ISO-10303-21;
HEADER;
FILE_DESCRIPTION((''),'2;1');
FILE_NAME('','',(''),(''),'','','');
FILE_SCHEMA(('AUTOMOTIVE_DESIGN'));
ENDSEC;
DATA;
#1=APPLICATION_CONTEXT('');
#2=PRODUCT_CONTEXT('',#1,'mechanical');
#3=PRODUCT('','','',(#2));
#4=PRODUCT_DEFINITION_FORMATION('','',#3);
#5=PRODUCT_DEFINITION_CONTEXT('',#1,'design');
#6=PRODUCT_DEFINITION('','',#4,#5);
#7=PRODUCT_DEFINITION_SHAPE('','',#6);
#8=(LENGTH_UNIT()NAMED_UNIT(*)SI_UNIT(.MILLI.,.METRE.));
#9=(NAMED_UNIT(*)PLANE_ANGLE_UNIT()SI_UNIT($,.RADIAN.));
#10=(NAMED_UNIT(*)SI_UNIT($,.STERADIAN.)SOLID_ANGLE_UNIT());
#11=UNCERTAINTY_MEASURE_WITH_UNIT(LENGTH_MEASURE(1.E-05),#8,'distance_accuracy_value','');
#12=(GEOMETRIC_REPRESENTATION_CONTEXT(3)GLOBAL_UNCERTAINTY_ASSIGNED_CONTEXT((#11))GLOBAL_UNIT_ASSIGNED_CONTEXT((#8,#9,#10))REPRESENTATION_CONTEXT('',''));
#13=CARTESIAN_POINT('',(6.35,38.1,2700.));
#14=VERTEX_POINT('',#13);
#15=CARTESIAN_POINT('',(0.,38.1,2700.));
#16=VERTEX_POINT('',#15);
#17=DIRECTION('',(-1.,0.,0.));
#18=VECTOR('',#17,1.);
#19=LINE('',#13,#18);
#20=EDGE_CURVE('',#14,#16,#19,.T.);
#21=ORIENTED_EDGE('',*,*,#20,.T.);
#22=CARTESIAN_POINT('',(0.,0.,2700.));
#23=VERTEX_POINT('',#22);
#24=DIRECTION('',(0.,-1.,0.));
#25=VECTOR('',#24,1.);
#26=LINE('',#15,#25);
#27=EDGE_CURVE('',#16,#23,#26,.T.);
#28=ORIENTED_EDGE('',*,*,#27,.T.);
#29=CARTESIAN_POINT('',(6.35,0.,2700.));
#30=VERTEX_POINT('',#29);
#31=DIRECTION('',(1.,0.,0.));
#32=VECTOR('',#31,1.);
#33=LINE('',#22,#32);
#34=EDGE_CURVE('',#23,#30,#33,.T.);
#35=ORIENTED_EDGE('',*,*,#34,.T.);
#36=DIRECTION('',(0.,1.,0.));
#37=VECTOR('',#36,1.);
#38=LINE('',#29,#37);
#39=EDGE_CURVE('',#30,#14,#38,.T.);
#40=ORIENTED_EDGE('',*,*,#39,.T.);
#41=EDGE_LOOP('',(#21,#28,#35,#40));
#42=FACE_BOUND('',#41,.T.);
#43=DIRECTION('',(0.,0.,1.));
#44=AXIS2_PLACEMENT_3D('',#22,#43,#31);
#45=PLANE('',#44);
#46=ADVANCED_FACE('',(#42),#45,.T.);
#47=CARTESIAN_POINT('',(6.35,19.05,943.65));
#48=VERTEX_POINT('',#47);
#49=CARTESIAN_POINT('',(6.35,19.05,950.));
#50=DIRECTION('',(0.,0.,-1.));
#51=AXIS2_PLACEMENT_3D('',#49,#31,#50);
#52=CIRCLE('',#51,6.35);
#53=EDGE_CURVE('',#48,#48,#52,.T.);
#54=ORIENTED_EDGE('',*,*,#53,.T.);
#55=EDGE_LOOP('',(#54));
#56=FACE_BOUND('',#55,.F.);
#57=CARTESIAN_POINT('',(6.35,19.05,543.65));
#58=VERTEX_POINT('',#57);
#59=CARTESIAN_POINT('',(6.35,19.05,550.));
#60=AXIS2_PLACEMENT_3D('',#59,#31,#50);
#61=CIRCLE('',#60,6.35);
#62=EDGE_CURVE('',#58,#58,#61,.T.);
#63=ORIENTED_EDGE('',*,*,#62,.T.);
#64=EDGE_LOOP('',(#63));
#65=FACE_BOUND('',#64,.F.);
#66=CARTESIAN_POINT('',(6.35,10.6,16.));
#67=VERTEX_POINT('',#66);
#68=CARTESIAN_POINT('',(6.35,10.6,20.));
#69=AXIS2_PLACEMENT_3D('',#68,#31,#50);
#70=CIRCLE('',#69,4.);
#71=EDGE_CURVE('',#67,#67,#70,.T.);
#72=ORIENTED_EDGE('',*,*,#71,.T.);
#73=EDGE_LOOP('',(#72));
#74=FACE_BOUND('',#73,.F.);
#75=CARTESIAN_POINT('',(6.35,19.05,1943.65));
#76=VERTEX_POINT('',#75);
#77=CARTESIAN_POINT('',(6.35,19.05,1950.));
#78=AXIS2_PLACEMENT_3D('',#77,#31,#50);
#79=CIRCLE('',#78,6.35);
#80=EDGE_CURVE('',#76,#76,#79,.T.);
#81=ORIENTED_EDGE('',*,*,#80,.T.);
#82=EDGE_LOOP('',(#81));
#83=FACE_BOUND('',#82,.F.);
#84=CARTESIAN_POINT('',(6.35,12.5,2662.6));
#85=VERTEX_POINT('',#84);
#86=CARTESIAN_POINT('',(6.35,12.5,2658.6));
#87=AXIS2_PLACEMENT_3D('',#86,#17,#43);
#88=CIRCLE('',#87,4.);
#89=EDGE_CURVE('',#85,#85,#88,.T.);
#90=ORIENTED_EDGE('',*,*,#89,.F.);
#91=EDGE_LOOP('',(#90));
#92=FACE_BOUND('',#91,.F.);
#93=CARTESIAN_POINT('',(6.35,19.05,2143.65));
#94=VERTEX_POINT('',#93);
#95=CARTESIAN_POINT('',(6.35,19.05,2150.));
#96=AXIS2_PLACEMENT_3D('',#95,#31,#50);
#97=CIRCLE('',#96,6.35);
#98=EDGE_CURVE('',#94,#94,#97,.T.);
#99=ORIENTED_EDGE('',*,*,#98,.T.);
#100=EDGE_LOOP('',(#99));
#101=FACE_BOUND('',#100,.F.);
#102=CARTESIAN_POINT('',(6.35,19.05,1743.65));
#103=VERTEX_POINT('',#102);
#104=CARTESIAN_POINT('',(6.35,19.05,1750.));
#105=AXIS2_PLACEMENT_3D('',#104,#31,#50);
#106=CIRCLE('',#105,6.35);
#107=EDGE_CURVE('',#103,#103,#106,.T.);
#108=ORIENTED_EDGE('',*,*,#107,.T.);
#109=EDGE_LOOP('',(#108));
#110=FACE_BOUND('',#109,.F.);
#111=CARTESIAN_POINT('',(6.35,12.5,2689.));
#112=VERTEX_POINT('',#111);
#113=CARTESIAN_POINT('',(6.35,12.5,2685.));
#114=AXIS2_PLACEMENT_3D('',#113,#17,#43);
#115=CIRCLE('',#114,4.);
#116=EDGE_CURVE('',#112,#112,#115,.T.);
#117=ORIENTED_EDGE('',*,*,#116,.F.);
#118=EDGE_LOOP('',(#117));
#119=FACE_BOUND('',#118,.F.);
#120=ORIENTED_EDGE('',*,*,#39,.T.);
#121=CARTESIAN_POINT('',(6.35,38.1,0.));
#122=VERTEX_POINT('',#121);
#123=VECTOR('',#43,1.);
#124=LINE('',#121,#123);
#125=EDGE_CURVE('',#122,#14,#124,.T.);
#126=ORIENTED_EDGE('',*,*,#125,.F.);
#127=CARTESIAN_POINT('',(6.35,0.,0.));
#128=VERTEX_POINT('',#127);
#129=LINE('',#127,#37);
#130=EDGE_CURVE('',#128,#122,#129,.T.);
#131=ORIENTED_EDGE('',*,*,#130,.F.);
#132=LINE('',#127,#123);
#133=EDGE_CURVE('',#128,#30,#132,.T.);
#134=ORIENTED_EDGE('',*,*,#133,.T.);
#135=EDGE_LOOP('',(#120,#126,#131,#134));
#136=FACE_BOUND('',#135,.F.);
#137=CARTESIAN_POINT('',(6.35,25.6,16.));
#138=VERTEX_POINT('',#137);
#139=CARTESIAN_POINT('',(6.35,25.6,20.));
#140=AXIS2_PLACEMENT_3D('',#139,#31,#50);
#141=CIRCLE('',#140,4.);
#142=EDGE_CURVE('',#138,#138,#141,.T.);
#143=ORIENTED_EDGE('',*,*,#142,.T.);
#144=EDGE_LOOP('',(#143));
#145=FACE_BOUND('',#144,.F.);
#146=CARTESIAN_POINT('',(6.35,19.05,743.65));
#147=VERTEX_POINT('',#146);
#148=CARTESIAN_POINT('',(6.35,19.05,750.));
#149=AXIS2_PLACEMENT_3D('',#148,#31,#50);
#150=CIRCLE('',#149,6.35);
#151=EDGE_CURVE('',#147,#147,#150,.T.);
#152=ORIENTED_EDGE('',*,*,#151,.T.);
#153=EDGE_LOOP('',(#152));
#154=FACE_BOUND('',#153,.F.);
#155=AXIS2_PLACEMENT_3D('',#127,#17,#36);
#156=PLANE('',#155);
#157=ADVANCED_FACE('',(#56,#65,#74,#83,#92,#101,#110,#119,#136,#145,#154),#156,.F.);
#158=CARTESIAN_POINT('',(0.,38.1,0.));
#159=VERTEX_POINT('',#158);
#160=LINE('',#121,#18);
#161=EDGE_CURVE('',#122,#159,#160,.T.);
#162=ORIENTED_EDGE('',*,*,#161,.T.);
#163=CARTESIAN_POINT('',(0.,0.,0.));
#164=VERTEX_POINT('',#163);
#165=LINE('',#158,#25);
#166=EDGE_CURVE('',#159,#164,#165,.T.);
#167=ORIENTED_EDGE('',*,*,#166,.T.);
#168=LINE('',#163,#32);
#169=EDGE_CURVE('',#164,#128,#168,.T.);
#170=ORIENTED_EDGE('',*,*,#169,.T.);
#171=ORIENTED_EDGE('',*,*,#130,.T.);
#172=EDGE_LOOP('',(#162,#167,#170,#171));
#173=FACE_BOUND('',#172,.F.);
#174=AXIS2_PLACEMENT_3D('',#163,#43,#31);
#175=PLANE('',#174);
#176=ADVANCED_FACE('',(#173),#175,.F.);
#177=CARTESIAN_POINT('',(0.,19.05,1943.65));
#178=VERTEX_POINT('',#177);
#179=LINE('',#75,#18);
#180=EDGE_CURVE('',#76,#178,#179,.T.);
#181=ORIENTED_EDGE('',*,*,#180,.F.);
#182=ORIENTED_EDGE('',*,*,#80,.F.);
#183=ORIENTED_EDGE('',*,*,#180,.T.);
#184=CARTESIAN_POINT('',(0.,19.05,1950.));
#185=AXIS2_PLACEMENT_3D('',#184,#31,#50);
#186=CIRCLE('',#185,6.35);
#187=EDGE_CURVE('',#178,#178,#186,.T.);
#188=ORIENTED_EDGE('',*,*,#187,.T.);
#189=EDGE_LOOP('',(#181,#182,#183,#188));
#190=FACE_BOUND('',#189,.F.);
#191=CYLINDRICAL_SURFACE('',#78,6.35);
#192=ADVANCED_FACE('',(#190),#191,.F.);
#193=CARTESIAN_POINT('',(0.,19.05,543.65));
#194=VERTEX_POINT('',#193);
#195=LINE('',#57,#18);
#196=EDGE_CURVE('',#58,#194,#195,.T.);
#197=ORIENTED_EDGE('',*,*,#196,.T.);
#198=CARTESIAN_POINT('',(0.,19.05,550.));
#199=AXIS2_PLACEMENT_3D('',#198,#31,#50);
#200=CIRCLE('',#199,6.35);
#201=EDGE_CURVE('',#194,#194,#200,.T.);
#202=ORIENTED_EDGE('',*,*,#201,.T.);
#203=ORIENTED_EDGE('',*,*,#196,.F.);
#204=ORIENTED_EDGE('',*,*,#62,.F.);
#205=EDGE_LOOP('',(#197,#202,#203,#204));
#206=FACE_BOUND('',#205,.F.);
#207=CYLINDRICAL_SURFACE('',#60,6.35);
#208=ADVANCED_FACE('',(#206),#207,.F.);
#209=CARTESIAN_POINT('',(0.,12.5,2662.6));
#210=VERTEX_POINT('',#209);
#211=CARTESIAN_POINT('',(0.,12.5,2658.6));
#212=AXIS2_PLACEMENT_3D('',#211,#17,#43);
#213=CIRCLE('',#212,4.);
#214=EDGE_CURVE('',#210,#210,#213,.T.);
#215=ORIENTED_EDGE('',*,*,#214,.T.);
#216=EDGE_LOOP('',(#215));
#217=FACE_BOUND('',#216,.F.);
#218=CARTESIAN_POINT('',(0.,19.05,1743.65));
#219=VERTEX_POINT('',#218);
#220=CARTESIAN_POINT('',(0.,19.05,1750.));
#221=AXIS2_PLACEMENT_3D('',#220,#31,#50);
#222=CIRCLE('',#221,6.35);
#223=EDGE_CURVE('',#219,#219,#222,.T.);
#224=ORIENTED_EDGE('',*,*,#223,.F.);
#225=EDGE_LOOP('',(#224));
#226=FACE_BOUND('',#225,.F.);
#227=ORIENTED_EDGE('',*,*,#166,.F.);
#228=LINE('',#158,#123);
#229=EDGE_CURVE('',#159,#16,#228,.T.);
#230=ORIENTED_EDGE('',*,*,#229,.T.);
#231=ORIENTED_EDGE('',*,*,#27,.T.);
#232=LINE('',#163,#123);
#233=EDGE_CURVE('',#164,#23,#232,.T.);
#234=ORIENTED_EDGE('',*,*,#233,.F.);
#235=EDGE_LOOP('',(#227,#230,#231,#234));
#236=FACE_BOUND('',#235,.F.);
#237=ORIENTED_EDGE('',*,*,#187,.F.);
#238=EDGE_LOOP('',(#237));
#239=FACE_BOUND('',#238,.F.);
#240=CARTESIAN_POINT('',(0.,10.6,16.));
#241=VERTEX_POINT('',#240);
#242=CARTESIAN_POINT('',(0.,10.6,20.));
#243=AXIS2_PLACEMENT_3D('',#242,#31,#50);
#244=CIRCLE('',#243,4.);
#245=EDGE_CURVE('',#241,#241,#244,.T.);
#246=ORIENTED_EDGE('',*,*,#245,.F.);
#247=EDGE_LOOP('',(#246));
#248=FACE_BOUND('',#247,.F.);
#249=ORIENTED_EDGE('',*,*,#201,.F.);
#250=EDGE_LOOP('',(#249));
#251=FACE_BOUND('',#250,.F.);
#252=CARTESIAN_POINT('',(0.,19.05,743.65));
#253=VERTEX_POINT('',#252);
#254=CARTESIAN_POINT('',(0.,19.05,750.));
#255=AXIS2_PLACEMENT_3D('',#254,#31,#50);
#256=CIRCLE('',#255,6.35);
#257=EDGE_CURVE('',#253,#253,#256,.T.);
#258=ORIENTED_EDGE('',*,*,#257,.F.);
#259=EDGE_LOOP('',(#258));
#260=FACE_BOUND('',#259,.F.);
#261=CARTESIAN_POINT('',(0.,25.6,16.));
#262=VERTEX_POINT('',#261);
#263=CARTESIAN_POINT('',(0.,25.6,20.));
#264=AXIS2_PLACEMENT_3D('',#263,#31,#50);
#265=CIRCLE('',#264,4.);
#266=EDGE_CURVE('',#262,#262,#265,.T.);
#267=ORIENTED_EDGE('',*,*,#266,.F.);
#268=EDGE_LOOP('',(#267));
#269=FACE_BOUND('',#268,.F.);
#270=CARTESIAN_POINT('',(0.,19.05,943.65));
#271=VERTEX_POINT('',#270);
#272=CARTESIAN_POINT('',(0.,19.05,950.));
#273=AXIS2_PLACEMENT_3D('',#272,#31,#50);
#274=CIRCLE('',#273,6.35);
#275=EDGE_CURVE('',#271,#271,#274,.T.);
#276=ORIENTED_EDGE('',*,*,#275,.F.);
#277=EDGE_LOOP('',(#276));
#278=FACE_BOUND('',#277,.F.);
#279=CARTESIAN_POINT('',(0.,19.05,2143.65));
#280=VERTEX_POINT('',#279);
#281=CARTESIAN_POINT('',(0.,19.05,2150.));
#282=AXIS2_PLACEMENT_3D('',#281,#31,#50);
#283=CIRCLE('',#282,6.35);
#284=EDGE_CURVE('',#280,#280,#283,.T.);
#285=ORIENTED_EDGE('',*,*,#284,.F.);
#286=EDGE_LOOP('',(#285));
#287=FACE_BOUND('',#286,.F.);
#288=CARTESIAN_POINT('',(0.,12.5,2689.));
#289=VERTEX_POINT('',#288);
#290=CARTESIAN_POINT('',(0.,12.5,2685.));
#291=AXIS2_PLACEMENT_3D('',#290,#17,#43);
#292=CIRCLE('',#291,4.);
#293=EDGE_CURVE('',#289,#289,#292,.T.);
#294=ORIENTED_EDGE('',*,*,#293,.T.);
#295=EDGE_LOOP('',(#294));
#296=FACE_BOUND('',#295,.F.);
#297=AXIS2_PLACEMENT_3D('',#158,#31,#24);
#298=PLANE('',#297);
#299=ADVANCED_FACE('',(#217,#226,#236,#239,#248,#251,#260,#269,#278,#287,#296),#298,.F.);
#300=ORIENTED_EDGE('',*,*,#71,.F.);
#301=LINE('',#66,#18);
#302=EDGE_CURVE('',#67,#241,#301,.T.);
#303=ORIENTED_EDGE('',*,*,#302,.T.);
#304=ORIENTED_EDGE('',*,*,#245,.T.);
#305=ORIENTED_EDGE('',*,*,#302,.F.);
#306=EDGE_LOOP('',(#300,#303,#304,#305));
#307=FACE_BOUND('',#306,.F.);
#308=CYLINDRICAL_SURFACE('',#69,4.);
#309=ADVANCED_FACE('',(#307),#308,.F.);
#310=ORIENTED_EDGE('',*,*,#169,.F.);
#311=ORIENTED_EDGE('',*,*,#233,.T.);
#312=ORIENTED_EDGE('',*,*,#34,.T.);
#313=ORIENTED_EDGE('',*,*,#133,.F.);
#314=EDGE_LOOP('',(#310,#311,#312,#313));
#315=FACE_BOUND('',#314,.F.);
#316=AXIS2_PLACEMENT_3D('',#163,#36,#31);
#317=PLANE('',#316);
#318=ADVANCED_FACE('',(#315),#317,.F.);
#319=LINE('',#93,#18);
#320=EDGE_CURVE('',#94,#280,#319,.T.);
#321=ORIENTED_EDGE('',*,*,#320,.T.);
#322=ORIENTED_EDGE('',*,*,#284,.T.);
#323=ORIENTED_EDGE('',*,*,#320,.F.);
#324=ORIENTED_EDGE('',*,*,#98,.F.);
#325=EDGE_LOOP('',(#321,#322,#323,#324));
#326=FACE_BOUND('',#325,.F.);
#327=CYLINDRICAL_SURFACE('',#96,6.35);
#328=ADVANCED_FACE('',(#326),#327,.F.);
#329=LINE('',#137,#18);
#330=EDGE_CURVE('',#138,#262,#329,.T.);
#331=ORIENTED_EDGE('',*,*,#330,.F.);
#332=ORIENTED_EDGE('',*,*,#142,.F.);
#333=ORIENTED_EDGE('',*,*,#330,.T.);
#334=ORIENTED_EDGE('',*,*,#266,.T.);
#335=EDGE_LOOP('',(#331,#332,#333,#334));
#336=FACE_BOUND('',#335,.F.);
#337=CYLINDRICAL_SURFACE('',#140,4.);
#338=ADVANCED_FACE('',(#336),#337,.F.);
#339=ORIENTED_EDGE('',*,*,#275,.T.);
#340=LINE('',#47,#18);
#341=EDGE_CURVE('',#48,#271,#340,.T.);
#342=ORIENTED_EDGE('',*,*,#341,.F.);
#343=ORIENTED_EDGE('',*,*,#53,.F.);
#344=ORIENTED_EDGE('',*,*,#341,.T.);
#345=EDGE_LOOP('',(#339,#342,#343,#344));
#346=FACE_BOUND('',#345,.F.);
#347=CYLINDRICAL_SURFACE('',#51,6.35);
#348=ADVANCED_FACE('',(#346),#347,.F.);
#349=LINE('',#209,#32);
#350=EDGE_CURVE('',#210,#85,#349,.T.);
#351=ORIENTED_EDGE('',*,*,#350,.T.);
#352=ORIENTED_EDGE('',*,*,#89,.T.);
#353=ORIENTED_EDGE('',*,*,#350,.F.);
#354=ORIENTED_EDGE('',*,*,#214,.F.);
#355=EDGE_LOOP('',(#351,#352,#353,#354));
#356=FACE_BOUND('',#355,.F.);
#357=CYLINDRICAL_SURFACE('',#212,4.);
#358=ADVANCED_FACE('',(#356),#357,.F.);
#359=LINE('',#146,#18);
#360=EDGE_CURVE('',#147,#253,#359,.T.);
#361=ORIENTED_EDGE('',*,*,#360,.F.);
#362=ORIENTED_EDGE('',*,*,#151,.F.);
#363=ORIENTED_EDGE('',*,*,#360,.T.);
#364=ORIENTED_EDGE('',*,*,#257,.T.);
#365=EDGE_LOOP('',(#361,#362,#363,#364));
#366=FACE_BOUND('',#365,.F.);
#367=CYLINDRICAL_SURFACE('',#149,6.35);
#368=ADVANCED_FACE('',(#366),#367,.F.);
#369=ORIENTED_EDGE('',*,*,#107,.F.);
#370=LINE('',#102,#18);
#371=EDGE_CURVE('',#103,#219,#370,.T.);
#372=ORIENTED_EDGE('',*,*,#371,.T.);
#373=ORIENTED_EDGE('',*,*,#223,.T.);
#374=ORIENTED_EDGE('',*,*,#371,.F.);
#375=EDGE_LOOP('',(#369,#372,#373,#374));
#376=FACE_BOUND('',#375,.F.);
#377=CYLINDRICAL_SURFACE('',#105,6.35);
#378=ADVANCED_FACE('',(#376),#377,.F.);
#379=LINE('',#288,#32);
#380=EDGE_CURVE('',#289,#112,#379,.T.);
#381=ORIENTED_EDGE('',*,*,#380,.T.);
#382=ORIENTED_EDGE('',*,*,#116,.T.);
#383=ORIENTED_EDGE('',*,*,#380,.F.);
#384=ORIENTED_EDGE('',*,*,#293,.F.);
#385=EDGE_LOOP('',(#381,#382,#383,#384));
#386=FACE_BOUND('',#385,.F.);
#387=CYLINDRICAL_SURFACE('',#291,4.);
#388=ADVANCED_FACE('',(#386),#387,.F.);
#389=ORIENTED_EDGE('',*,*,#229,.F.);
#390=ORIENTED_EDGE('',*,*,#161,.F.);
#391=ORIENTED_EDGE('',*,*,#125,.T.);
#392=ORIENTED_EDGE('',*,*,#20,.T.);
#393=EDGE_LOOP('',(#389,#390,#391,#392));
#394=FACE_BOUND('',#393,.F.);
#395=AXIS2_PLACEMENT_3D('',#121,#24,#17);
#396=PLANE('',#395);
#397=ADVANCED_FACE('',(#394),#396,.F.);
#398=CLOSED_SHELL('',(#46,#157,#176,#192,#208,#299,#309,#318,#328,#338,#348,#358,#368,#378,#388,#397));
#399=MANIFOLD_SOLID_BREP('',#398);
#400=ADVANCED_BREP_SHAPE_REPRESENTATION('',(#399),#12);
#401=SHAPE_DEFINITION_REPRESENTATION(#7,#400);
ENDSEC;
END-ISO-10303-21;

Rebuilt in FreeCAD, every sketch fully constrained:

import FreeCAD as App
import Part
import Sketcher

V = App.Vector
Q = App.Units.Quantity


def add_polygon(sketch, points):
    """Adds a closed chain of lines whose ends are joined by coincident constraints."""
    first, n = sketch.GeometryCount, len(points)
    for a, b in zip(points, points[1:] + points[:1]):
        sketch.addGeometry(Part.LineSegment(App.Vector(*a, 0), App.Vector(*b, 0)), False)
    for i in range(n):
        sketch.addConstraint(Sketcher.Constraint("Coincident", first + i, 2, first + (i + 1) % n, 1))

doc = App.newDocument("Part")
body = doc.addObject("PartDesign::Body", "Body")

# Sketch on XY plane
sketch1 = doc.addObject("Sketcher::SketchObject", "Sketch")
body.addObject(sketch1)
sketch1.AttachmentSupport = (doc.XY_Plane, [""])
sketch1.MapMode = "FlatFace"
add_polygon(sketch1, [(0, 38), (0, 0), (6, 0), (6, 38)])  # lines 0-3
sketch1.addConstraint([
    Sketcher.Constraint("Vertical", 0),
    Sketcher.Constraint("Horizontal", 1),
    Sketcher.Constraint("Vertical", 2),
    Sketcher.Constraint("Horizontal", 3),
    Sketcher.Constraint("Coincident", 0, 2, -1, 1),
    Sketcher.Constraint("DistanceY", 0, 2, 0, 1, Q("1.5 in")),
    Sketcher.Constraint("DistanceX", 1, 1, 1, 2, Q("0.25 in")),
])
pad1 = doc.addObject("PartDesign::Pad", "Pad")
body.addObject(pad1)
pad1.Profile = sketch1
pad1.Length = 2700

# Sketch on YZ plane
sketch2 = doc.addObject("Sketcher::SketchObject", "Sketch001")
body.addObject(sketch2)
sketch2.AttachmentSupport = (doc.YZ_Plane, [""])
sketch2.MapMode = "FlatFace"
sketch2.AttachmentOffset = App.Placement(V(0, 0, 0.25 * 25.4), App.Rotation())
sketch2.addGeometry([
    Part.Circle(V(19, 2150, 0), V(0, 0, 1), 6),  # 0
    Part.Circle(V(19, 1950, 0), V(0, 0, 1), 6),  # 1
    Part.Circle(V(19, 1750, 0), V(0, 0, 1), 6),  # 2
    Part.Circle(V(19, 950, 0), V(0, 0, 1), 6),  # 3
    Part.Circle(V(19, 750, 0), V(0, 0, 1), 6),  # 4
    Part.Circle(V(19, 550, 0), V(0, 0, 1), 6),  # 5
], False)
sketch2.addConstraint([
    Sketcher.Constraint("Equal", 0, 1),
    Sketcher.Constraint("Equal", 1, 2),
    Sketcher.Constraint("Equal", 2, 3),
    Sketcher.Constraint("Equal", 3, 4),
    Sketcher.Constraint("Equal", 4, 5),
    Sketcher.Constraint("Vertical", 0, 3, 1, 3),
    Sketcher.Constraint("Vertical", 1, 3, 2, 3),
    Sketcher.Constraint("Vertical", 2, 3, 3, 3),
    Sketcher.Constraint("Vertical", 3, 3, 4, 3),
    Sketcher.Constraint("Vertical", 4, 3, 5, 3),
    Sketcher.Constraint("Diameter", 0, Q("0.5 in")),
    Sketcher.Constraint("DistanceX", -1, 1, 0, 3, Q("0.75 in")),
    Sketcher.Constraint("DistanceY", -1, 1, 5, 3, Q("550 mm")),
    Sketcher.Constraint("DistanceY", 1, 3, 0, 3, Q("200 mm")),
    Sketcher.Constraint("DistanceY", 2, 3, 1, 3, Q("200 mm")),
    Sketcher.Constraint("DistanceY", 4, 3, 3, 3, Q("200 mm")),
    Sketcher.Constraint("DistanceY", 5, 3, 4, 3, Q("200 mm")),
    Sketcher.Constraint("DistanceY", 3, 3, 0, 3, Q("47.2441 in")),
])
pocket1 = doc.addObject("PartDesign::Pocket", "Pocket")
body.addObject(pocket1)
pocket1.Profile = sketch2
pocket1.Length = Q("0.3937008 in")

# Sketch on YZ plane
sketch3 = doc.addObject("Sketcher::SketchObject", "Sketch002")
body.addObject(sketch3)
sketch3.AttachmentSupport = (doc.YZ_Plane, [""])
sketch3.MapMode = "FlatFace"
sketch3.addGeometry([
    Part.Circle(V(12.5, 2658.6, 0), V(0, 0, 1), 4),
    Part.Circle(V(12.5, 2685, 0), V(0, 0, 1), 4),
], False)
sketch3.addConstraint([
    Sketcher.Constraint("Equal", 0, 1),
    Sketcher.Constraint("Vertical", 0, 3, 1, 3),
    Sketcher.Constraint("Diameter", 0, Q("8 mm")),
    Sketcher.Constraint("DistanceX", -1, 1, 0, 3, Q("12.5 mm")),
    Sketcher.Constraint("DistanceY", 0, 3, 1, 3, Q("26.4 mm")),
    Sketcher.Constraint("DistanceY", -1, 1, 0, 3, Q("104.6693 in")),
])
pocket2 = doc.addObject("PartDesign::Pocket", "Pocket001")
body.addObject(pocket2)
pocket2.Profile = sketch3
pocket2.Length = Q("0.3937008 in")
pocket2.Reversed = True

# Sketch on YZ plane
sketch4 = doc.addObject("Sketcher::SketchObject", "Sketch003")
body.addObject(sketch4)
sketch4.AttachmentSupport = (doc.YZ_Plane, [""])
sketch4.MapMode = "FlatFace"
sketch4.AttachmentOffset = App.Placement(V(0, 0, 0.25 * 25.4), App.Rotation())
sketch4.addGeometry([
    Part.Circle(V(25.6, 20, 0), V(0, 0, 1), 4),
    Part.Circle(V(10.6, 20, 0), V(0, 0, 1), 4),
], False)
sketch4.addConstraint([
    Sketcher.Constraint("Equal", 0, 1),
    Sketcher.Constraint("Horizontal", 0, 3, 1, 3),
    Sketcher.Constraint("Diameter", 0, Q("8 mm")),
    Sketcher.Constraint("DistanceY", -1, 1, 0, 3, Q("0.7874 in")),
    Sketcher.Constraint("DistanceX", 1, 3, 0, 3, Q("15 mm")),
    Sketcher.Constraint("DistanceX", -1, 1, 0, 3, Q("25.6 mm")),
])
pocket3 = doc.addObject("PartDesign::Pocket", "Pocket002")
body.addObject(pocket3)
pocket3.Profile = sketch4
pocket3.Type = "UpToFirst"

doc.recompute()
